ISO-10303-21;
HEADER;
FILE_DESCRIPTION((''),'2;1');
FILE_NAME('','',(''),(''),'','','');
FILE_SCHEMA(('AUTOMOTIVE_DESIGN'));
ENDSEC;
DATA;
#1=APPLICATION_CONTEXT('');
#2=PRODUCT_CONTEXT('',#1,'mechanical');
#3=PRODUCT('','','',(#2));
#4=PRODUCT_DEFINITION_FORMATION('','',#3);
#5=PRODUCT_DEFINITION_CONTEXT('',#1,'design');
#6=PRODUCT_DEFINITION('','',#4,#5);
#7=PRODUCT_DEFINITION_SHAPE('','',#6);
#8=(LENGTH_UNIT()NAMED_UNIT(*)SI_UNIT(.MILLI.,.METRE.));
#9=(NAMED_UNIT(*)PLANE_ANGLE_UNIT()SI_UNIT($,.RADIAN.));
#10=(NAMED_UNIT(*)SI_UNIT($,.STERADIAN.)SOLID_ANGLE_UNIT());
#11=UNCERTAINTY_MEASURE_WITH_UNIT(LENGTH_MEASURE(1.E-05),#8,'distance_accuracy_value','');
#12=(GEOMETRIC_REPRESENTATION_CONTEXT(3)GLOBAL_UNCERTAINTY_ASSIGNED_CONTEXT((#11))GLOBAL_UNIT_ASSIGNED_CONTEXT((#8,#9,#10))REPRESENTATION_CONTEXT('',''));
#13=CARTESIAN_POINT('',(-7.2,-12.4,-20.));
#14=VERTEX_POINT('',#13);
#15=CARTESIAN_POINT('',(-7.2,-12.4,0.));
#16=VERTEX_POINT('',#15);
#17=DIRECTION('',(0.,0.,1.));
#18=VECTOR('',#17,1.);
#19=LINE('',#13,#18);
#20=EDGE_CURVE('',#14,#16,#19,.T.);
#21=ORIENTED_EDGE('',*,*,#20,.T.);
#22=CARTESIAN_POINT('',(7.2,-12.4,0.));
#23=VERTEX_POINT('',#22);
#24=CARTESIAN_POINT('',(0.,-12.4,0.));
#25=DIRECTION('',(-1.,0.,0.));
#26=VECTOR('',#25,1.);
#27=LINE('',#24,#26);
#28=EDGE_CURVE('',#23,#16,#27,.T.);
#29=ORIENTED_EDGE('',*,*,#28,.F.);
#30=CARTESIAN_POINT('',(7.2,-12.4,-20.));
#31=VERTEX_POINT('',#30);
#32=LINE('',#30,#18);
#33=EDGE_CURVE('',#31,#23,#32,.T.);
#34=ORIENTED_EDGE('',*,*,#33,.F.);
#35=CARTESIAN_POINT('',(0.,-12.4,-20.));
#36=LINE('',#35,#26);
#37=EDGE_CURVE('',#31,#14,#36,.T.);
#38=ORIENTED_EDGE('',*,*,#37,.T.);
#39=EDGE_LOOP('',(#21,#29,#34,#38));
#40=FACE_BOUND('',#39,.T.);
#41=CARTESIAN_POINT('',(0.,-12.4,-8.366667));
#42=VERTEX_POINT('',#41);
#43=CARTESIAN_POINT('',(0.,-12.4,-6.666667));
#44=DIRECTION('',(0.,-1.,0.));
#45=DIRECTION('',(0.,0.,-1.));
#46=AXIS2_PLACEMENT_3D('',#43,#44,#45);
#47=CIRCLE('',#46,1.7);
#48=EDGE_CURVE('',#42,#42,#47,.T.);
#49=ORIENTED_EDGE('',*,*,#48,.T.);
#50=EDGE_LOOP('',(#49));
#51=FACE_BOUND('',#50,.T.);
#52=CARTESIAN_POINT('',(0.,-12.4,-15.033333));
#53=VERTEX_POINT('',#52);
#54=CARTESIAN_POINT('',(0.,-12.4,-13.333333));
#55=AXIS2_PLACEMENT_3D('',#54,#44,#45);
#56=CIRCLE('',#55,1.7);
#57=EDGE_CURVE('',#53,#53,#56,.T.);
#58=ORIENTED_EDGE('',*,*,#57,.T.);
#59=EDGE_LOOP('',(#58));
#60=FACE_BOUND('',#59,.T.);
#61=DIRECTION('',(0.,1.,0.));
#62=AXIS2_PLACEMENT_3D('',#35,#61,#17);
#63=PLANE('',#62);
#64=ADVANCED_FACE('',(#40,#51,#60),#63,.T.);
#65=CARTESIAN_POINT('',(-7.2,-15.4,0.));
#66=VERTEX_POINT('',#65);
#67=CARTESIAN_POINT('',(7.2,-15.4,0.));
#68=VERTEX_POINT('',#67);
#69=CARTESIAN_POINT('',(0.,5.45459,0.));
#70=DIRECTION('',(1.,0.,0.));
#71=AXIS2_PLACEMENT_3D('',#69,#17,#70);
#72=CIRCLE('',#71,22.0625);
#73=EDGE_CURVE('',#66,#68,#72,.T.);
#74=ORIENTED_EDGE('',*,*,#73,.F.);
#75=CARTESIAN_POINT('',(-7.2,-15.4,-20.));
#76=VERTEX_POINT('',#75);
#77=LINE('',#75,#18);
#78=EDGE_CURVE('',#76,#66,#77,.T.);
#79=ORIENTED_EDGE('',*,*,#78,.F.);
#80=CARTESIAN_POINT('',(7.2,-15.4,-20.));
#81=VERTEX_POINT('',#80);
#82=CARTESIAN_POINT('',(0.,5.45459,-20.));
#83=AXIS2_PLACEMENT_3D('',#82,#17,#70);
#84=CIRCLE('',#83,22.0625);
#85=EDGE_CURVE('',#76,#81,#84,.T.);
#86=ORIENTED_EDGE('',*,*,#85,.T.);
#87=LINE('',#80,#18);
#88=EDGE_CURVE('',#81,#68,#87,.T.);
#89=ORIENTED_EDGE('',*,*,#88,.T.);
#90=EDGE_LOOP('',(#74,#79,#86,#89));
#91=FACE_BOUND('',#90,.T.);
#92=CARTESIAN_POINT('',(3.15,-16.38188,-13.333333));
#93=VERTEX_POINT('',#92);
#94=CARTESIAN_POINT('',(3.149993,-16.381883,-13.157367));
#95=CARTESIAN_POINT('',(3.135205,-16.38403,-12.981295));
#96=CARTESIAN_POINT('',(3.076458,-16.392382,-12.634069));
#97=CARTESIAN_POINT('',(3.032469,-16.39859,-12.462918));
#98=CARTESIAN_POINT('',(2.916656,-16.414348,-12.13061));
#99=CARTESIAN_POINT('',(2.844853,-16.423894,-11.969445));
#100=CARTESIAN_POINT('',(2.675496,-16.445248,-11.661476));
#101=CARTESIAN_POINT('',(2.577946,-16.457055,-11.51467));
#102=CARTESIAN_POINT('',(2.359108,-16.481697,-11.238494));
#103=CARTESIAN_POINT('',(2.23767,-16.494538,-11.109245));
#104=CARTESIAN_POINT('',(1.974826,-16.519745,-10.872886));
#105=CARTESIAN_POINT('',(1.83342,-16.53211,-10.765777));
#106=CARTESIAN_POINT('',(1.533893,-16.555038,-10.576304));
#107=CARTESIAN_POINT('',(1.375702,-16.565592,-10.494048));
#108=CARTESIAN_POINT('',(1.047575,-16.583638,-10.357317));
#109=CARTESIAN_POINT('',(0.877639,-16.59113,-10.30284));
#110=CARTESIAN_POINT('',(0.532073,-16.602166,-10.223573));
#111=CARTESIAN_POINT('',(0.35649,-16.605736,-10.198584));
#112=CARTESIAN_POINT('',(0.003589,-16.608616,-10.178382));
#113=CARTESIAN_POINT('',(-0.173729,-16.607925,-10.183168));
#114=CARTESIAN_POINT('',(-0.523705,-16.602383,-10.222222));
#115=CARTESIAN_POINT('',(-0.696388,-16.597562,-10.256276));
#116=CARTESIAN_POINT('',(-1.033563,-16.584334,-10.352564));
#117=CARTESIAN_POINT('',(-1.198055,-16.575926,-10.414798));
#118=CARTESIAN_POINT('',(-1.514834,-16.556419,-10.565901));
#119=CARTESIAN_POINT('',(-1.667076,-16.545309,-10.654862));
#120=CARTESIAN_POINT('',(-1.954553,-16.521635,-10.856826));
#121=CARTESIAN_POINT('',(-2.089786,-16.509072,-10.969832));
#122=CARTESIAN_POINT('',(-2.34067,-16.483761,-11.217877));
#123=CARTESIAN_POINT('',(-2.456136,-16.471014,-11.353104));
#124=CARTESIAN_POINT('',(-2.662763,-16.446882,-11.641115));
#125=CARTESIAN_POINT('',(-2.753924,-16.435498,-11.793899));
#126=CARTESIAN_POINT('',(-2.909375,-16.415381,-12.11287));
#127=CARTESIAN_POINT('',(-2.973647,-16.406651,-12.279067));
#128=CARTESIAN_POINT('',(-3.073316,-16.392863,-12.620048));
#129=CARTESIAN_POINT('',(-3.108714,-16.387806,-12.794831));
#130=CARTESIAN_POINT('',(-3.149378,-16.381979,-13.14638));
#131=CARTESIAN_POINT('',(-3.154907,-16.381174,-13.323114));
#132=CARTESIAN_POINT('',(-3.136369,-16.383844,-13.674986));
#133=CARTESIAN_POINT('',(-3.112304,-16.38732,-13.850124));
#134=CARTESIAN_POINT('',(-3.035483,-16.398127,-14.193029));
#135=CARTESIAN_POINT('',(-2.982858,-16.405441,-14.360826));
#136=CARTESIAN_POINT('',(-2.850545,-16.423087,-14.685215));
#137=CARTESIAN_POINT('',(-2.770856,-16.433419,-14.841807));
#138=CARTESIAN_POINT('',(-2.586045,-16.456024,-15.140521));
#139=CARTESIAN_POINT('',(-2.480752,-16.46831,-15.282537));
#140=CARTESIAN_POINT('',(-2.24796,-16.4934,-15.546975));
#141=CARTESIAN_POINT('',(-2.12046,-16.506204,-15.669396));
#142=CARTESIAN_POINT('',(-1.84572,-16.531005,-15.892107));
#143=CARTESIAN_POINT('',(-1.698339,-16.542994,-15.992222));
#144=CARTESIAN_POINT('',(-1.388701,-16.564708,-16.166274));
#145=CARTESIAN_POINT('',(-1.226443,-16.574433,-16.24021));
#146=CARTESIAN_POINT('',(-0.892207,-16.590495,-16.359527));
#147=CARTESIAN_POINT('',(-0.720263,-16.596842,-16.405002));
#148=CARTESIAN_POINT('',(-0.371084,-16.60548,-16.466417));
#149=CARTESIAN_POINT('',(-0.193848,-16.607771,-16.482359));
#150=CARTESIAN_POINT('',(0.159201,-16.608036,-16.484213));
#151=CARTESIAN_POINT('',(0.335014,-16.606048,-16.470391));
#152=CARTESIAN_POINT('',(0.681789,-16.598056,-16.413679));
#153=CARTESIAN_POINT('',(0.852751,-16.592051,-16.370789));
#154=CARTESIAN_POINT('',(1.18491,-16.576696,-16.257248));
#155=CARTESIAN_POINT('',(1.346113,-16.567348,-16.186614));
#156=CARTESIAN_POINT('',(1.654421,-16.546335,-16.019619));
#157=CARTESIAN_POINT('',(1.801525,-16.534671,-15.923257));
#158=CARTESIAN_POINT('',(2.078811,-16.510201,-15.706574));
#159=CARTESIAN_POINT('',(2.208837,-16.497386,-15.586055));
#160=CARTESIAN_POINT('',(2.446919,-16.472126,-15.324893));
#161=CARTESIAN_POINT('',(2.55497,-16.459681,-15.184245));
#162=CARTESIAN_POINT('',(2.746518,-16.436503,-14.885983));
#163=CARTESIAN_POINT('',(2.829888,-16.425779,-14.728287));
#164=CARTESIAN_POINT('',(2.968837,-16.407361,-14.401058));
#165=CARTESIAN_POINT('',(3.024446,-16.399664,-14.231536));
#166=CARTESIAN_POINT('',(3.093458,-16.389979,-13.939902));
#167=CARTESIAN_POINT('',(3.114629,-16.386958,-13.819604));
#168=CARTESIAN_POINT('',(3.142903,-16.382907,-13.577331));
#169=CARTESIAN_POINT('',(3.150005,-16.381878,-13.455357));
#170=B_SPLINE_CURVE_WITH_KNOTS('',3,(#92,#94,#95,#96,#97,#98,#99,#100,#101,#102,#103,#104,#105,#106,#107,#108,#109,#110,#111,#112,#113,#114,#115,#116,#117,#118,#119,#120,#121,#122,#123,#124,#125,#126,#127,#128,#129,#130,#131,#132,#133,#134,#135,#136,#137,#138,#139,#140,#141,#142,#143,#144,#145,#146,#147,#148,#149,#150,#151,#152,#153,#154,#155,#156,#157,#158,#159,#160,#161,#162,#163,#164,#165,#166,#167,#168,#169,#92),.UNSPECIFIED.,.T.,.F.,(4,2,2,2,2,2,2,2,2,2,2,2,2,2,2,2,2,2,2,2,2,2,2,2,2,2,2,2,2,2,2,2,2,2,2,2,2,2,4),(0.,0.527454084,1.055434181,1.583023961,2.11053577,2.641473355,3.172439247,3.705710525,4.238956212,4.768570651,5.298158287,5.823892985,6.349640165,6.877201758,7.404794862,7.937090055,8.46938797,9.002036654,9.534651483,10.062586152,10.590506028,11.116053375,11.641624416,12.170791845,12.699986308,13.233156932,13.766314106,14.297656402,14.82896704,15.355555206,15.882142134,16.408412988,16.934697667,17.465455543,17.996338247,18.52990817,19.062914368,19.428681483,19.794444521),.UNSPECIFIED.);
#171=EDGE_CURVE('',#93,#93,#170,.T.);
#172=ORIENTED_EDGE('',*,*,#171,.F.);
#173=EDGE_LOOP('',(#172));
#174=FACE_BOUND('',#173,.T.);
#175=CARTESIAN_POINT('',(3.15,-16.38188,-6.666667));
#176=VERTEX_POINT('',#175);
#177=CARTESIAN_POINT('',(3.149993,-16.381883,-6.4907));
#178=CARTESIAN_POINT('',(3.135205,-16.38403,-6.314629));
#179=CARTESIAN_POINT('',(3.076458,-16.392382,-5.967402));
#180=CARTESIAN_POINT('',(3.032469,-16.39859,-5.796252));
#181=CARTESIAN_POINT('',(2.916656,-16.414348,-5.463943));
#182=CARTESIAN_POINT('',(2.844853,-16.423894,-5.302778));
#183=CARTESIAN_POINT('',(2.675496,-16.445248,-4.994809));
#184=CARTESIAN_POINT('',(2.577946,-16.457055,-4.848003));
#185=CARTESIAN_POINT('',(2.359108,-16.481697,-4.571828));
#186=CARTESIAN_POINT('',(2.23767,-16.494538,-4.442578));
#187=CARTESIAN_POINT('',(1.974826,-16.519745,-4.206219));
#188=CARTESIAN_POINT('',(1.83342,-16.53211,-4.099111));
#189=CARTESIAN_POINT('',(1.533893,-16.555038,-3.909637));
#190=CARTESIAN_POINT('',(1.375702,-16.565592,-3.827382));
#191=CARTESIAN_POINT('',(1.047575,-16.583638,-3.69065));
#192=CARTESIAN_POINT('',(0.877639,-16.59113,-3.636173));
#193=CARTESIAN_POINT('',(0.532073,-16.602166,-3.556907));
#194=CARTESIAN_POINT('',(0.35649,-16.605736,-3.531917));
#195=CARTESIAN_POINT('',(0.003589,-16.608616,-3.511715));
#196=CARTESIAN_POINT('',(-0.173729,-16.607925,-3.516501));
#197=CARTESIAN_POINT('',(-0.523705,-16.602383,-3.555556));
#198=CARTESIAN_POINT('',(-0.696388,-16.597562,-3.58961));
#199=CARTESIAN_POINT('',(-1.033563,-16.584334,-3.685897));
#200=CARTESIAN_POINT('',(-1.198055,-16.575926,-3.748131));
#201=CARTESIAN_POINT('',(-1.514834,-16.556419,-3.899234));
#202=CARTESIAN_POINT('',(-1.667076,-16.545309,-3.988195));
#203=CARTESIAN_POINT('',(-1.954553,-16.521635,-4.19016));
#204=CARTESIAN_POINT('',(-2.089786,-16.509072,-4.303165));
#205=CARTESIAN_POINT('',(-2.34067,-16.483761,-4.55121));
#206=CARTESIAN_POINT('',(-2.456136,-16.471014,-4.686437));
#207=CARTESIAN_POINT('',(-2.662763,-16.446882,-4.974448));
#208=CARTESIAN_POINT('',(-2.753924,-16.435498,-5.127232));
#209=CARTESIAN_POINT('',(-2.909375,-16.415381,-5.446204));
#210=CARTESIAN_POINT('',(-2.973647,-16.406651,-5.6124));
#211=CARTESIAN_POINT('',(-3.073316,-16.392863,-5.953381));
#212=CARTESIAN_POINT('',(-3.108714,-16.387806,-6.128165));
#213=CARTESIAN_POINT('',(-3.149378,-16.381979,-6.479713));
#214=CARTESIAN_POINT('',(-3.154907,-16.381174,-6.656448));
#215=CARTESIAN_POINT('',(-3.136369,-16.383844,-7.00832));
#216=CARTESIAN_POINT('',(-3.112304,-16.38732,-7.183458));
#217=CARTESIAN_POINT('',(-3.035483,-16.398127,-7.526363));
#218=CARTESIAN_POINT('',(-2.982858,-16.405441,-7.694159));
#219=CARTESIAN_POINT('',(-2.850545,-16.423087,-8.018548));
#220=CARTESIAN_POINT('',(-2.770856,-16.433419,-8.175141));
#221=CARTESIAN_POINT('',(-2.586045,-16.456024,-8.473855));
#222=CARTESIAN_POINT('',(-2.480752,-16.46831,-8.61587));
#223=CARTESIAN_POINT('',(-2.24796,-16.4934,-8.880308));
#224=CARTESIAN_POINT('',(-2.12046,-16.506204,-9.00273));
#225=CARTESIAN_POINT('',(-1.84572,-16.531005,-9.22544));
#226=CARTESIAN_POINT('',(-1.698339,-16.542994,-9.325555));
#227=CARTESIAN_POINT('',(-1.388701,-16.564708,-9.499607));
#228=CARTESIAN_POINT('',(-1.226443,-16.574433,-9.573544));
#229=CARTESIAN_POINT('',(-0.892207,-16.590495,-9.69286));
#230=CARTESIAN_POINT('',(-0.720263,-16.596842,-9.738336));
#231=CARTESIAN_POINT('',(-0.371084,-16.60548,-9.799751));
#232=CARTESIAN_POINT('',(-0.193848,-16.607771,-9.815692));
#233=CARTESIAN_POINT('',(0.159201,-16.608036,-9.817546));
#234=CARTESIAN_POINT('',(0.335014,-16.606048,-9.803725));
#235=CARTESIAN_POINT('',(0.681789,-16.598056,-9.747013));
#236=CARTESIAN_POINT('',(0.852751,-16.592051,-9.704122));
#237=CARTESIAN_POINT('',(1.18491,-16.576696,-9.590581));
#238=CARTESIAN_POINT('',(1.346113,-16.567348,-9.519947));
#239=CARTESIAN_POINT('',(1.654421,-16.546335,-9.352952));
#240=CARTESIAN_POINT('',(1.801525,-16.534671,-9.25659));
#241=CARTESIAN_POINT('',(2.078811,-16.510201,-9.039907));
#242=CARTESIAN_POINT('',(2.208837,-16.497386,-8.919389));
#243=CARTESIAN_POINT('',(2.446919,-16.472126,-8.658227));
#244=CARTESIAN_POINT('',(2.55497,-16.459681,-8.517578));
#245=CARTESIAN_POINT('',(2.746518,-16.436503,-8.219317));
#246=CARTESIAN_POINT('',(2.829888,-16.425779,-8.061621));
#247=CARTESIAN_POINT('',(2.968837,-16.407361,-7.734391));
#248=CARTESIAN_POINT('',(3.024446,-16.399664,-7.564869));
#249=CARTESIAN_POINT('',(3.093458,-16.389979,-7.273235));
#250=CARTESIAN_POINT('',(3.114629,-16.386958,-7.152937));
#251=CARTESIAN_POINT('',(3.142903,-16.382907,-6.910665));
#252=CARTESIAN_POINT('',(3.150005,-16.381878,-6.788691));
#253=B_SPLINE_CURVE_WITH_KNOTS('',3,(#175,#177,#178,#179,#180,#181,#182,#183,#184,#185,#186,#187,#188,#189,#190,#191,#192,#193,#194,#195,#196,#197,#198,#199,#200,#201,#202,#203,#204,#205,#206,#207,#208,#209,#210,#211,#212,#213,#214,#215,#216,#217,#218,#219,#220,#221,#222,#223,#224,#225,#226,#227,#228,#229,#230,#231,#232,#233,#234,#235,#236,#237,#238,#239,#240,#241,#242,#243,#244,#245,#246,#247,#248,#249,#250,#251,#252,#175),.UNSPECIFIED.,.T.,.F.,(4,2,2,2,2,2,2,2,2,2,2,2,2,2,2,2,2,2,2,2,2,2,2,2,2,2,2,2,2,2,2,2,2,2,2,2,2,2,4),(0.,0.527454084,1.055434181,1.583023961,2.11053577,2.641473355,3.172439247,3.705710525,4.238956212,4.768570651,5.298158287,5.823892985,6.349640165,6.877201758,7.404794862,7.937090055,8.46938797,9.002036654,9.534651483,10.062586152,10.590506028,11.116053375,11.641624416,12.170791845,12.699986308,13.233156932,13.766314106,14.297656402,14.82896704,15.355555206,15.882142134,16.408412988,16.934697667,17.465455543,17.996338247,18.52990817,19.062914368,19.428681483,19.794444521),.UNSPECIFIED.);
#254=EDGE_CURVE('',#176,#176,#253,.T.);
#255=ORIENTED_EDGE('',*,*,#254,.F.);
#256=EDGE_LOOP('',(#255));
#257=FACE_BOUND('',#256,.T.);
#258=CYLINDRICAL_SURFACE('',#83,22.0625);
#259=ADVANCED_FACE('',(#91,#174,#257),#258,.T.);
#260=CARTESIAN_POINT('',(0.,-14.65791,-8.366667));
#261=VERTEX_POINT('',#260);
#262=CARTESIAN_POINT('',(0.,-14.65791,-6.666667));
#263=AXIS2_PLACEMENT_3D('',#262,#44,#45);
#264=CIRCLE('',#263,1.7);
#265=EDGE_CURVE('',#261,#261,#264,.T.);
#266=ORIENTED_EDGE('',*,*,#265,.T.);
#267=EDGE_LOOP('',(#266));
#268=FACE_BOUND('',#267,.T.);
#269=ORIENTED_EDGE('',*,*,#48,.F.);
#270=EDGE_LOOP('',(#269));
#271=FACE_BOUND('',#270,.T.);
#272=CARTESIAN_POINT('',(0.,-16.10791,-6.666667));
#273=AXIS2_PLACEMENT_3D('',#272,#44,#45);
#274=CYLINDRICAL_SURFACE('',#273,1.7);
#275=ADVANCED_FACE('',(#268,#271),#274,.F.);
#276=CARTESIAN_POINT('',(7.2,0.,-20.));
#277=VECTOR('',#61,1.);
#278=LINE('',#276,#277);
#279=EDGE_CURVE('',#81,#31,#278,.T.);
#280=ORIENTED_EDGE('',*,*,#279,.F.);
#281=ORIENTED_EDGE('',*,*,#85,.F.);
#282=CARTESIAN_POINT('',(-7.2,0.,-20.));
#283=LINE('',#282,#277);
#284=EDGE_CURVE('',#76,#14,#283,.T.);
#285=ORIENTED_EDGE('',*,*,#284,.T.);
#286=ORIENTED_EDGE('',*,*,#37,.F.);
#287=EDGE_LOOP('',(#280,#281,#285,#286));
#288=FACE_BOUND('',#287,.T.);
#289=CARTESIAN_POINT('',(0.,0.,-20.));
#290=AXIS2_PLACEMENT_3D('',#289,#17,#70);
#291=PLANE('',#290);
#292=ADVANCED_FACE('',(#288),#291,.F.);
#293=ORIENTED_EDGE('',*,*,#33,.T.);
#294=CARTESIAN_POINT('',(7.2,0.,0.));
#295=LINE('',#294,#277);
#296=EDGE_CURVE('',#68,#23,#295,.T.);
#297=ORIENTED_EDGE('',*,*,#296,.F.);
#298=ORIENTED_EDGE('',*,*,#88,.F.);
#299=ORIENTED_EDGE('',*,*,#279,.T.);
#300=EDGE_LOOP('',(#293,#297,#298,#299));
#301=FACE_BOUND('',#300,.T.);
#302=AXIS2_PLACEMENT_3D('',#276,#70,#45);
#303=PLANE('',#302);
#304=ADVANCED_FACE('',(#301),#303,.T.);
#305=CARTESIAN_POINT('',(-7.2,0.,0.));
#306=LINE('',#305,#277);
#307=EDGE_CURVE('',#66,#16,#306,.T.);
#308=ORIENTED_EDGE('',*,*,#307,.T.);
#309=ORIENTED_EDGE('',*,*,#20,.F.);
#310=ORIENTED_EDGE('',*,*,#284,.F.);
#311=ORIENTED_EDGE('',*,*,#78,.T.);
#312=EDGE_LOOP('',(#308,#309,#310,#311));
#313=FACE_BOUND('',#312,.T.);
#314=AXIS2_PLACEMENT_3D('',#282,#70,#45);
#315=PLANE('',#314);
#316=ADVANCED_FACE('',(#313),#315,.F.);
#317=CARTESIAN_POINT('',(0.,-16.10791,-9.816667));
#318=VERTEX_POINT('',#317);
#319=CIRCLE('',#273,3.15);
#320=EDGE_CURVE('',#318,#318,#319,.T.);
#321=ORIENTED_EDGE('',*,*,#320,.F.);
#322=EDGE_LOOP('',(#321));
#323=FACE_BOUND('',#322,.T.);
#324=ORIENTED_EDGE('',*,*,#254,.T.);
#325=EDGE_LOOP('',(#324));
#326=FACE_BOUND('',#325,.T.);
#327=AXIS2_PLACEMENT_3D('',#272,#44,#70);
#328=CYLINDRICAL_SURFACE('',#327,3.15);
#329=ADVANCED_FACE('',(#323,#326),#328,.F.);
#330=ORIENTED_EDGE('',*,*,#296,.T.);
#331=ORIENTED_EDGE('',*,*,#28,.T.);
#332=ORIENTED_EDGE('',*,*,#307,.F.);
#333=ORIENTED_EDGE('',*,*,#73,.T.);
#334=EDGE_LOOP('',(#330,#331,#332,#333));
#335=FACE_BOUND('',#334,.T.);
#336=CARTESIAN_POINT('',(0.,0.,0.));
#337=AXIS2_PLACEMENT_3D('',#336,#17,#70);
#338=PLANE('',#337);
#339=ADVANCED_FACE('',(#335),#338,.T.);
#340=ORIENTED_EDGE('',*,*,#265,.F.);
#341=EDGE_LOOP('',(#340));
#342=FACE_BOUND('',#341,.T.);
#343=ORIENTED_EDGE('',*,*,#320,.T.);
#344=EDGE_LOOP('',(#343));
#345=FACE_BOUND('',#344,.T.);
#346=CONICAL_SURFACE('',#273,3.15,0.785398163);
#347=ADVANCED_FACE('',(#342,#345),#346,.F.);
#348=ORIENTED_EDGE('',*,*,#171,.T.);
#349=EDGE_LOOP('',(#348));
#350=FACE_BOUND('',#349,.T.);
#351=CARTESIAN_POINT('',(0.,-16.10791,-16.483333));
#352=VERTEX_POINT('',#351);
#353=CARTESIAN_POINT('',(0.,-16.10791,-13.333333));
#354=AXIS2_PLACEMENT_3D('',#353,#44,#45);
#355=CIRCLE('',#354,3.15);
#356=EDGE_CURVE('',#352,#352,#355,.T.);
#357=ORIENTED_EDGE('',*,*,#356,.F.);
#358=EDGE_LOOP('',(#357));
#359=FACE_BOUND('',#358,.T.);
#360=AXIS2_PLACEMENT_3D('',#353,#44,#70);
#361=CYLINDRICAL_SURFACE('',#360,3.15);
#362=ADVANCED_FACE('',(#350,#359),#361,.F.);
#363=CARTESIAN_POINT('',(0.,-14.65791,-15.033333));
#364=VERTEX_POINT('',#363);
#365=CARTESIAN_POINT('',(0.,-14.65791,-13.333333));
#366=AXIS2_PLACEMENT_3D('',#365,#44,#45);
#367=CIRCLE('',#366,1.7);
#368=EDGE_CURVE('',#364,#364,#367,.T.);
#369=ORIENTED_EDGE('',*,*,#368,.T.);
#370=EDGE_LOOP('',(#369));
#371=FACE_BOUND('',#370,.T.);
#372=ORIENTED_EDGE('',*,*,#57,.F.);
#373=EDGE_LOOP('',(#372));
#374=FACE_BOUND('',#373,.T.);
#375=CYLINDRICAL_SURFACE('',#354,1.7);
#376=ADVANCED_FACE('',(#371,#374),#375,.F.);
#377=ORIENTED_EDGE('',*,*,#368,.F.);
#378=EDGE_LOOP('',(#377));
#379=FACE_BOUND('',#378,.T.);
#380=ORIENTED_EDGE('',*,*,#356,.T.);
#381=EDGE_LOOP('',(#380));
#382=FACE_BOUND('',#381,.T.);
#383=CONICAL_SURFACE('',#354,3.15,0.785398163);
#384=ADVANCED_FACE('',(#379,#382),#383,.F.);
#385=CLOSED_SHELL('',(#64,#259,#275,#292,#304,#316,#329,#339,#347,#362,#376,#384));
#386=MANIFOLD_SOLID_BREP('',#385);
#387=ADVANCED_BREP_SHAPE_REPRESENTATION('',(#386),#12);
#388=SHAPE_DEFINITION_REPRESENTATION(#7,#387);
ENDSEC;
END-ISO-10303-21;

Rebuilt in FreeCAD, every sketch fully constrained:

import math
import FreeCAD as App
import Part
import Sketcher

doc = App.newDocument("Part")
body = doc.addObject("PartDesign::Body", "Body")

sketch1 = doc.addObject("Sketcher::SketchObject", "Sketch")
body.addObject(sketch1)
sketch1.AttachmentSupport = (doc.XY_Plane, [""])
sketch1.MapMode = "FlatFace"
sketch1.addGeometry(Part.LineSegment(App.Vector(7.2, -12.4, 0), App.Vector(-7.2, -12.4, 0)), False)
sketch1.addGeometry(Part.LineSegment(App.Vector(-7.2, -12.4, 0), App.Vector(-7.2, -15.4, 0)), False)
sketch1.addGeometry(Part.ArcOfCircle(Part.Circle(App.Vector(0, 5.45459, 0), App.Vector(0, 0, 1), 22.0625), math.radians(-109.047118), math.radians(-70.952882)), False)
sketch1.addGeometry(Part.LineSegment(App.Vector(7.2, -15.4, 0), App.Vector(7.2, -12.4, 0)), False)
sketch1.addConstraint(Sketcher.Constraint("Coincident", 0, 2, 1, 1))
sketch1.addConstraint(Sketcher.Constraint("Coincident", 1, 2, 2, 1))
sketch1.addConstraint(Sketcher.Constraint("Coincident", 2, 2, 3, 1))
sketch1.addConstraint(Sketcher.Constraint("Coincident", 3, 2, 0, 1))
sketch1.addConstraint(Sketcher.Constraint("Horizontal", 0))
sketch1.addConstraint(Sketcher.Constraint("Vertical", 1))
sketch1.addConstraint(Sketcher.Constraint("Vertical", 3))
sketch1.addConstraint(Sketcher.Constraint("Symmetric", 1, 2, 2, 2, -2))
sketch1.addConstraint(Sketcher.Constraint("DistanceY", 1, 2, 1, 1, 3.0))
sketch1.addConstraint(Sketcher.Constraint("DistanceX", 0, 2, 0, 1, 14.4))
sketch1.addConstraint(Sketcher.Constraint("DistanceY", 0, 2, -1, 1, 12.4))
sketch1.addConstraint(Sketcher.Constraint("Radius", 2, 22.0625))
pad1 = doc.addObject("PartDesign::Pad", "Pad")
body.addObject(pad1)
pad1.Profile = sketch1
pad1.Length = 20
pad1.Reversed = True

sketch2 = doc.addObject("Sketcher::SketchObject", "Sketch001")
body.addObject(sketch2)
sketch2.AttachmentSupport = (doc.XZ_Plane, [""])
sketch2.MapMode = "FlatFace"
sketch2.AttachmentOffset = App.Placement(App.Vector(0, 0, 16.60791), App.Rotation())
sketch2.addGeometry(Part.Circle(App.Vector(0, -13.333333, 0), App.Vector(0, 0, 1), 3.15), False)
sketch2.addGeometry(Part.Circle(App.Vector(0, -6.666667, 0), App.Vector(0, 0, 1), 3.15), False)
sketch2.addConstraint(Sketcher.Constraint("Equal", 0, 1))
sketch2.addConstraint(Sketcher.Constraint("PointOnObject", 0, 3, -2))
sketch2.addConstraint(Sketcher.Constraint("PointOnObject", 1, 3, -2))
sketch2.addConstraint(Sketcher.Constraint("Diameter", 0, 6.3))
sketch2.addConstraint(Sketcher.Constraint("DistanceY", 0, 3, -1, 1, 13.333333))
sketch2.addConstraint(Sketcher.Constraint("DistanceY", 1, 3, -1, 1, 6.666667))
pocket1 = doc.addObject("PartDesign::Pocket", "Pocket")
body.addObject(pocket1)
pocket1.Profile = sketch2
pocket1.Length = 0.5

sketch3 = doc.addObject("Sketcher::SketchObject", "Sketch002")
body.addObject(sketch3)
sketch3.AttachmentSupport = (doc.XZ_Plane, [""])
sketch3.MapMode = "FlatFace"
sketch3.AttachmentOffset = App.Placement(App.Vector(0, 0, 16.10791), App.Rotation())
sketch3.addGeometry(Part.Circle(App.Vector(0, -6.666667, 0), App.Vector(0, 0, 1), 1.7), False)
sketch3.addGeometry(Part.Circle(App.Vector(0, -13.333333, 0), App.Vector(0, 0, 1), 1.7), False)
sketch3.addConstraint(Sketcher.Constraint("Equal", 0, 1))
sketch3.addConstraint(Sketcher.Constraint("PointOnObject", 0, 3, -2))
sketch3.addConstraint(Sketcher.Constraint("PointOnObject", 1, 3, -2))
sketch3.addConstraint(Sketcher.Constraint("Diameter", 0, 3.4))
sketch3.addConstraint(Sketcher.Constraint("DistanceY", 0, 3, -1, 1, 6.666667))
sketch3.addConstraint(Sketcher.Constraint("DistanceY", 1, 3, -1, 1, 13.333333))
doc.recompute()
hole = doc.addObject("PartDesign::Hole", "Hole")
body.addObject(hole)
hole.Profile = sketch3
hole.ThreadType = "None"
hole.Diameter = 3.4
hole.DepthType = "ThroughAll"
hole.HoleCutType = "Countersink"
hole.HoleCutDiameter = 6.3
hole.HoleCutCountersinkAngle = 90

doc.recompute()
